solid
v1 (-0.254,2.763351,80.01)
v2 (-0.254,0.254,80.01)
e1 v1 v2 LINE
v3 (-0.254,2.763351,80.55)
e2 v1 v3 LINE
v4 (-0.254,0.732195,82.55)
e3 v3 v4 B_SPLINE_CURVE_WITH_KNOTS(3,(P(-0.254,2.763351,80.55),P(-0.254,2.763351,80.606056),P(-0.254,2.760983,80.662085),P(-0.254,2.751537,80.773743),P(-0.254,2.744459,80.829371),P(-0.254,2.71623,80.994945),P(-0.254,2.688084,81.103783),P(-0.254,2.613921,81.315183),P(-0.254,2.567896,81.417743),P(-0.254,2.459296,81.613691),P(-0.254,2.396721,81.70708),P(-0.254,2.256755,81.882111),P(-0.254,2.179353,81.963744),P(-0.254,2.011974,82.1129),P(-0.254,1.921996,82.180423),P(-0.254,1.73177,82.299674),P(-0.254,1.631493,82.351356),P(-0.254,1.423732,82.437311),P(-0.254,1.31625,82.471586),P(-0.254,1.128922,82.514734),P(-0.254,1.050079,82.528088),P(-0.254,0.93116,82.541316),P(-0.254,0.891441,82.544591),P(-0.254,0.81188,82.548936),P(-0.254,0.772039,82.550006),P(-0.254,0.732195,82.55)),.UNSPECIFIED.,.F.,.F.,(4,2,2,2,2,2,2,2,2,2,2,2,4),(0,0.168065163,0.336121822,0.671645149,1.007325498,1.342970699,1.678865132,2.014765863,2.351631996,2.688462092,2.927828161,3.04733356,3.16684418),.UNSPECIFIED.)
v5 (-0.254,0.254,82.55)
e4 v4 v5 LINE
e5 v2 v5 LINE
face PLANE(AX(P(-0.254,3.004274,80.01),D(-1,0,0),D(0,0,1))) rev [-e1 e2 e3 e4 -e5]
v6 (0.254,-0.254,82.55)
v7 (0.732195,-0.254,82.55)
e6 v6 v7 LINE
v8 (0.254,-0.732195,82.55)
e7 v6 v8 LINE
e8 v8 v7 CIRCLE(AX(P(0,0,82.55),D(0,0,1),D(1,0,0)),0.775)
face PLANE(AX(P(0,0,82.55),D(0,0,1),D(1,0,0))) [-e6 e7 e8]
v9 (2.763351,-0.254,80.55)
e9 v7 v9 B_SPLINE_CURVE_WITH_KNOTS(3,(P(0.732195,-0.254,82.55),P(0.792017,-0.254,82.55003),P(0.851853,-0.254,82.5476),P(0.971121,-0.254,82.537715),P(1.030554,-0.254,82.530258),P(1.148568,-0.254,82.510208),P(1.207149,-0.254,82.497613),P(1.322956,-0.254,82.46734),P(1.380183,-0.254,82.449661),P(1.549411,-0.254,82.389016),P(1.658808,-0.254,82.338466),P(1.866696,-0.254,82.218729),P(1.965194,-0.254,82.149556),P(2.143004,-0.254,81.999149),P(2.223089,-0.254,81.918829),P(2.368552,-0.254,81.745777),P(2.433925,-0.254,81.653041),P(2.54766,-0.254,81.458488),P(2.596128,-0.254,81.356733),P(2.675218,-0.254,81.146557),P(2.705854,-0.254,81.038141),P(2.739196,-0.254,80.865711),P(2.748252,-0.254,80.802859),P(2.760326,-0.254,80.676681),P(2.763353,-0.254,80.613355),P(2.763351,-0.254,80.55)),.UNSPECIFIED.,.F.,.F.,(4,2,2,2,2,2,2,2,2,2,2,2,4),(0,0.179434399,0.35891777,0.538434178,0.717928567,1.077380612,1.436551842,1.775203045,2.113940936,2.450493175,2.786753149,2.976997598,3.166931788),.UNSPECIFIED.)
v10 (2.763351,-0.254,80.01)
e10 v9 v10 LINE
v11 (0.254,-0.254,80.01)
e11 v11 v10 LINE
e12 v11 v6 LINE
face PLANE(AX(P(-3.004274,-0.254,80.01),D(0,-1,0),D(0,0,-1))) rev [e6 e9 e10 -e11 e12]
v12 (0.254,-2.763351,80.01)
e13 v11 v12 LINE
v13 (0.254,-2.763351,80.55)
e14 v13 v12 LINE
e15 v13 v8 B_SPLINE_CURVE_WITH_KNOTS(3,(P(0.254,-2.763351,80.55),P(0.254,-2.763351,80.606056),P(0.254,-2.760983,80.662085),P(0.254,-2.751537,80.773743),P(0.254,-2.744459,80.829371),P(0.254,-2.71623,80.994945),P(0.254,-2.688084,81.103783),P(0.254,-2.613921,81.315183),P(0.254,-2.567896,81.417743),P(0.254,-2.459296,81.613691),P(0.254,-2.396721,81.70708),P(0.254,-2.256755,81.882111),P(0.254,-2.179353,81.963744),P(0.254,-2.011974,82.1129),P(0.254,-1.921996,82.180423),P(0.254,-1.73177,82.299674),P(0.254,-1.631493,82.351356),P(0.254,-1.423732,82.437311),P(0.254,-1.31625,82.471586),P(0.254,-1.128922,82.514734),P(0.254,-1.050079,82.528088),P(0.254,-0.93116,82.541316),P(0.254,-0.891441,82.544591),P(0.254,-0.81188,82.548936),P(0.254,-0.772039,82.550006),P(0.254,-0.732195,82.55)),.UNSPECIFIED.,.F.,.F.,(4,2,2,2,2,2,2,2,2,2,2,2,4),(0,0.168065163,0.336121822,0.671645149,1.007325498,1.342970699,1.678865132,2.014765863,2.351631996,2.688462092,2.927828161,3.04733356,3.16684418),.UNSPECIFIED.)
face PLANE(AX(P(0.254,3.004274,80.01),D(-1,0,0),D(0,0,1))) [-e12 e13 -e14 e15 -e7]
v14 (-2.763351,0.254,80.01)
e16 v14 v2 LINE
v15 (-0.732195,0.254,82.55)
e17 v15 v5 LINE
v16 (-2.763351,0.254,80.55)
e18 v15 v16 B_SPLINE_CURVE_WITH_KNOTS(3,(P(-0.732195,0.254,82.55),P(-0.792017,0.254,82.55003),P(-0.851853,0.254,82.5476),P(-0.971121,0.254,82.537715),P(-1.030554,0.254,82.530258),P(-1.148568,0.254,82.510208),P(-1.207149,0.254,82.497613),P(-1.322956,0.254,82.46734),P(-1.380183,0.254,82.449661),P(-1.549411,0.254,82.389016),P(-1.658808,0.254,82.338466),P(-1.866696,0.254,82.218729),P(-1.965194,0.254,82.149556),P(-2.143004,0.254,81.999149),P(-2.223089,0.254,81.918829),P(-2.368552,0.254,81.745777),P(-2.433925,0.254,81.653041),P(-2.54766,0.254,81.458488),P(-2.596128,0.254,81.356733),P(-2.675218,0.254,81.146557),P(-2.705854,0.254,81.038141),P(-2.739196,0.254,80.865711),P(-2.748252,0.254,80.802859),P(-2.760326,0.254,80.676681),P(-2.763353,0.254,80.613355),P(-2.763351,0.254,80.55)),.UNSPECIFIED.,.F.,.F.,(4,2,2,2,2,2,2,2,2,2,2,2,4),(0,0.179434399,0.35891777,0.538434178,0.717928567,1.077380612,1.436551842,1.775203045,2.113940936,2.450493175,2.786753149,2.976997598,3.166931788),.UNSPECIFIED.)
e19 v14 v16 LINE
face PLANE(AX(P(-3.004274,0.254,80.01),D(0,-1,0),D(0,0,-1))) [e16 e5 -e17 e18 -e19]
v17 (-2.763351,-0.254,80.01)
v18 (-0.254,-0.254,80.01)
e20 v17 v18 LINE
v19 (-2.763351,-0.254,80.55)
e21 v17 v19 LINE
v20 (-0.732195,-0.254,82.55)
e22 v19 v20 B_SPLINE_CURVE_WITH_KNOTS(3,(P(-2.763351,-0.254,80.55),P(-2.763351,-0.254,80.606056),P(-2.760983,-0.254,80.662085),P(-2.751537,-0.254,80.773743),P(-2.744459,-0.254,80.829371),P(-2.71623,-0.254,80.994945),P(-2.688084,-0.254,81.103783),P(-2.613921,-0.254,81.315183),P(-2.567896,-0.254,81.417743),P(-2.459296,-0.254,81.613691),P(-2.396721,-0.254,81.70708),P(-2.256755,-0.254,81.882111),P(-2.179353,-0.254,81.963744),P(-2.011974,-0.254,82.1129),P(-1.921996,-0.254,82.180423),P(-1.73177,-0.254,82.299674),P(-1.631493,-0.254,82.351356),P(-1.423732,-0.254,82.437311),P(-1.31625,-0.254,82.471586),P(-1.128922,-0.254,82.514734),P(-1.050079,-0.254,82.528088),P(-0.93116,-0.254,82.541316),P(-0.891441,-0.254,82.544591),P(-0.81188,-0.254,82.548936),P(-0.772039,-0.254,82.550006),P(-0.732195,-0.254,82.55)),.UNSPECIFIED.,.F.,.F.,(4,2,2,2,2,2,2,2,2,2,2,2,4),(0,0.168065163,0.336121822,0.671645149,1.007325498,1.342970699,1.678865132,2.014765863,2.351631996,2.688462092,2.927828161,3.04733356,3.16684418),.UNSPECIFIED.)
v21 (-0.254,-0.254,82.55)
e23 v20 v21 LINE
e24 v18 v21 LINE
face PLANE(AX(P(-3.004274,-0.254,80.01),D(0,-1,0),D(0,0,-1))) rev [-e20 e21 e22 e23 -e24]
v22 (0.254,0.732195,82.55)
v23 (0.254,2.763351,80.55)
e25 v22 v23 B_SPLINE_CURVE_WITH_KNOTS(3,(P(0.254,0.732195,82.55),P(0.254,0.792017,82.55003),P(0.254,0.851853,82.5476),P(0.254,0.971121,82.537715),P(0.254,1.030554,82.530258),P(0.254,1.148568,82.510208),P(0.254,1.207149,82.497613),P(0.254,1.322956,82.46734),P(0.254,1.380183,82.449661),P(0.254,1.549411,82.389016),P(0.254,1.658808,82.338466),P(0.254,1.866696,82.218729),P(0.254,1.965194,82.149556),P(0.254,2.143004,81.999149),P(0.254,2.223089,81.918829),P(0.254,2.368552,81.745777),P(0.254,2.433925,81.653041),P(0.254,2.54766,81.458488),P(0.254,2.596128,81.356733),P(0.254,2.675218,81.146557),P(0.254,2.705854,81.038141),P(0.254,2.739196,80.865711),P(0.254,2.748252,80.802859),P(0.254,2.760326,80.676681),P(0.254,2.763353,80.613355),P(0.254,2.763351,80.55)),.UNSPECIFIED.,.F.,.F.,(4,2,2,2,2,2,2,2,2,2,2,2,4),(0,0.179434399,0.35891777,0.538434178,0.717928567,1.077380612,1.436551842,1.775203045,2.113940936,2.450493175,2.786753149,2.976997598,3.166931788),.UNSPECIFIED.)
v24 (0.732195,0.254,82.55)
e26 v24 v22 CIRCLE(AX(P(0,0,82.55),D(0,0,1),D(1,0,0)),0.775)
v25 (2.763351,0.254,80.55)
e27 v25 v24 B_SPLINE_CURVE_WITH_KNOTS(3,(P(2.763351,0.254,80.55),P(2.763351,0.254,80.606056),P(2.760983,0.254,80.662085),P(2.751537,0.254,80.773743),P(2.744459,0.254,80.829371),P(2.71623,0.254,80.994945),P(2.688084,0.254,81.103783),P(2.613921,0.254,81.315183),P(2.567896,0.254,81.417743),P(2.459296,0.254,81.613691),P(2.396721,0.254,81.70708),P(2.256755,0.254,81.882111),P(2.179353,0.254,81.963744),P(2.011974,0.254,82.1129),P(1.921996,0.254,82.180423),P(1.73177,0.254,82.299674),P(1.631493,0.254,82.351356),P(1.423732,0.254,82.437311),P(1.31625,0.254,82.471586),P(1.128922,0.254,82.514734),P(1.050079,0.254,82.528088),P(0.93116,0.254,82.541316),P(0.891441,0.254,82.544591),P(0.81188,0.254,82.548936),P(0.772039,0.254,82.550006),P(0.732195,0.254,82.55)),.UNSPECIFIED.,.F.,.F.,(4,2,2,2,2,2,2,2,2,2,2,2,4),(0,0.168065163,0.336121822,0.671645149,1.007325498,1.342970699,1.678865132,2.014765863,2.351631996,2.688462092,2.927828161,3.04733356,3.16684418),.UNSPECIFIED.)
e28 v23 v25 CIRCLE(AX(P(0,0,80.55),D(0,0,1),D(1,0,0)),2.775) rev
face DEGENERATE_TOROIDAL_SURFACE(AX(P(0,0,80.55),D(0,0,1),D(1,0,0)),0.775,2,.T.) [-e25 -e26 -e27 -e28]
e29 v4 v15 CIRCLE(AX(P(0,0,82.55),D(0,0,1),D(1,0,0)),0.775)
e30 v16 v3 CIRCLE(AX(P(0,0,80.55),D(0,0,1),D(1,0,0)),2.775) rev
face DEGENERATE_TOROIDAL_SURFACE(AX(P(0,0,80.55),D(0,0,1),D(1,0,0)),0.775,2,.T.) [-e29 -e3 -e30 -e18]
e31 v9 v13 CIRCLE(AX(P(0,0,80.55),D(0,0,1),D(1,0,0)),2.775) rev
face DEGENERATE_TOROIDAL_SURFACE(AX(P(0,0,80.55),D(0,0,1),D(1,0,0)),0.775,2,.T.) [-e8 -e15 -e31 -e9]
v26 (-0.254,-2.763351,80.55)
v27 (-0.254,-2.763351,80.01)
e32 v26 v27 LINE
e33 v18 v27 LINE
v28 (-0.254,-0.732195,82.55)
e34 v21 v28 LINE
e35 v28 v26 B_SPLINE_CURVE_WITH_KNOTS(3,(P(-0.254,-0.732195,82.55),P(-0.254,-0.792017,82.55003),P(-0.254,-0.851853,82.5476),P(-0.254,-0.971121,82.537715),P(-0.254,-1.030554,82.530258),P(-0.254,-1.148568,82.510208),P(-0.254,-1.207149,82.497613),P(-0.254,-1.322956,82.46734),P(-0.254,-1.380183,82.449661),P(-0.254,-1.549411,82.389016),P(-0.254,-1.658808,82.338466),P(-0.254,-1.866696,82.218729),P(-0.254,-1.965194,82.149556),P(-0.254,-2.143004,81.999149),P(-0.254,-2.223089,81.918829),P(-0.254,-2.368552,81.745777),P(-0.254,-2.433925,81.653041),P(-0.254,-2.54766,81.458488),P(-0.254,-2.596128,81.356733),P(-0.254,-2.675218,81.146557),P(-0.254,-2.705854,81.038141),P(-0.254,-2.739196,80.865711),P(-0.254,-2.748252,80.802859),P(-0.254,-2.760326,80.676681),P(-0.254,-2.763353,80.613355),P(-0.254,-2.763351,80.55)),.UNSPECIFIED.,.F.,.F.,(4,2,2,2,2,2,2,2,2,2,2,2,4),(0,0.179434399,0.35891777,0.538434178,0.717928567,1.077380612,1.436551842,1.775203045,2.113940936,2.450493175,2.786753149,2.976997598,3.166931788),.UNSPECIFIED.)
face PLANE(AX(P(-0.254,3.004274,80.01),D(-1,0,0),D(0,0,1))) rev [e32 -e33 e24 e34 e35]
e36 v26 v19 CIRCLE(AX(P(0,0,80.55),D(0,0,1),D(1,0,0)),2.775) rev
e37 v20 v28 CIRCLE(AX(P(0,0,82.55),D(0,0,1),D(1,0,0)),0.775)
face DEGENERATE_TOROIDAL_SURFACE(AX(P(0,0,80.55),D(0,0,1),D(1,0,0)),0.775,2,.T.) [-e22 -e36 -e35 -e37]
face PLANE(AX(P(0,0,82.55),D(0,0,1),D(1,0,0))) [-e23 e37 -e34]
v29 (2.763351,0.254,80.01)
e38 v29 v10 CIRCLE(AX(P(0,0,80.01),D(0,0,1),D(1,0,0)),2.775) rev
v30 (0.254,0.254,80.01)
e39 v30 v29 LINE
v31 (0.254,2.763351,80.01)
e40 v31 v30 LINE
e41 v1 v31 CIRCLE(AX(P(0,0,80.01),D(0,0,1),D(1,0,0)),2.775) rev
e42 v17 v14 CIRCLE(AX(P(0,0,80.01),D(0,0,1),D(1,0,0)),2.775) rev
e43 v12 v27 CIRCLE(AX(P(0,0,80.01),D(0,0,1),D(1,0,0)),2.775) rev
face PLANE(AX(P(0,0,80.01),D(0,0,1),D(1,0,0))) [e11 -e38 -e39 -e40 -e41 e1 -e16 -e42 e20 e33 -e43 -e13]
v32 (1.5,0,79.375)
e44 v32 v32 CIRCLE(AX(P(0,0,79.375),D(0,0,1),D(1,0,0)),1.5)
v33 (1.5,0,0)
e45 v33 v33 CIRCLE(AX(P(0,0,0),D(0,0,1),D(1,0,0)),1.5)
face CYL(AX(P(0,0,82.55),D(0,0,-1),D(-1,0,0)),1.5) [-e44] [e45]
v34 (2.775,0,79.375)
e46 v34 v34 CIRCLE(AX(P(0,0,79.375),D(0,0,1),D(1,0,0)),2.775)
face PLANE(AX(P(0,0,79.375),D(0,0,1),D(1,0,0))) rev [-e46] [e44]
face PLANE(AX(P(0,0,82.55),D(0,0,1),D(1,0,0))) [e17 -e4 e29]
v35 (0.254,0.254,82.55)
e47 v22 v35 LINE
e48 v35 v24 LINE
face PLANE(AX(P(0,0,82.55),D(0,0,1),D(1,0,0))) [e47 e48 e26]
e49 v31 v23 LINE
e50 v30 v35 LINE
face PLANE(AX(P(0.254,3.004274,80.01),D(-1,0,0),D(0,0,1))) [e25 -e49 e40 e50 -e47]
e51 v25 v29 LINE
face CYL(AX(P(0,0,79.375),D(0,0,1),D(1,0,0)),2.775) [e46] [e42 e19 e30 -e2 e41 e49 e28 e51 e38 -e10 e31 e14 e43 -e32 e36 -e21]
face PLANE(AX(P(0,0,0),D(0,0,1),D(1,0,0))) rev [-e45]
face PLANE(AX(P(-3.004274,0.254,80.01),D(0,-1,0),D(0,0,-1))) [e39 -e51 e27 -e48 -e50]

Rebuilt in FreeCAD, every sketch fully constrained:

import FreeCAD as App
import Part
import Sketcher

V = App.Vector
Q = App.Units.Quantity


def edges_at(feature, points):
    """Names of the edges that pass closest to the given points."""
    edges = feature.Shape.Edges
    near = lambda p: min(range(len(edges)), key=lambda i: edges[i].distToShape(Part.Vertex(*p))[0])
    return sorted({f"Edge{near(p) + 1}" for p in points})

doc = App.newDocument("Part")
body = doc.addObject("PartDesign::Body", "Body")

# Sketch on XY plane
sketch1 = body.newObject("Sketcher::SketchObject", "Sketch")
sketch1.AttachmentSupport = (doc.getObject("XY_Plane"), [""])
sketch1.MapMode = "FlatFace"
sketch1.addGeometry(Part.Circle(V(0, 0, 0), V(0, 0, 1), 1.5), False)
sketch1.addConstraint([
    Sketcher.Constraint("Coincident", 0, 3, -1, 1),
    Sketcher.Constraint("Diameter", 0, 3.0),
])
pad1 = body.newObject("PartDesign::Pad", "Pad")
pad1.Profile = sketch1
pad1.Length = Q("3.25 in")

# Sketch on XY plane
sketch2 = body.newObject("Sketcher::SketchObject", "Sketch001")
sketch2.AttachmentSupport = (doc.getObject("XY_Plane"), [""])
sketch2.MapMode = "FlatFace"
sketch2.AttachmentOffset = App.Placement(V(0, 0, 3.25 * 25.4), App.Rotation())
sketch2.addGeometry(Part.Circle(V(0, 0, 0), V(0, 0, 1), 2.8), False)
sketch2.addConstraint([
    Sketcher.Constraint("Coincident", 0, 3, -1, 1),
    Sketcher.Constraint("Diameter", 0, 5.55),
])
pad2 = body.newObject("PartDesign::Pad", "Pad001")
pad2.Profile = sketch2
pad2.Length = Q("0.125 in")
pad2.Reversed = True

# Sketch on XY plane
sketch3 = body.newObject("Sketcher::SketchObject", "Sketch002")
sketch3.AttachmentSupport = (doc.getObject("XY_Plane"), [""])
sketch3.MapMode = "FlatFace"
sketch3.AttachmentOffset = App.Placement(V(0, 0, 3.25 * 25.4), App.Rotation())
sketch3.addGeometry([
    Part.LineSegment(V(-0.3, -0.3, 0), V(-0.3, -3, 0)),  # 0
    Part.LineSegment(V(-0.3, -3, 0), V(0.3, -3, 0)),  # 1
    Part.LineSegment(V(0.3, -3, 0), V(0.3, -0.3, 0)),  # 2
    Part.LineSegment(V(0.3, -0.3, 0), V(3, -0.3, 0)),  # 3
    Part.LineSegment(V(3, -0.3, 0), V(3, 0.3, 0)),  # 4
    Part.LineSegment(V(3, 0.3, 0), V(0.3, 0.3, 0)),  # 5
    Part.LineSegment(V(0.3, 0.3, 0), V(0.3, 3, 0)),  # 6
    Part.LineSegment(V(0.3, 3, 0), V(-0.3, 3, 0)),  # 7
    Part.LineSegment(V(-0.3, 3, 0), V(-0.3, 0.3, 0)),  # 8
    Part.LineSegment(V(-0.3, 0.3, 0), V(-3, 0.3, 0)),  # 9
    Part.LineSegment(V(-3, 0.3, 0), V(-3, -0.3, 0)),  # 10
    Part.LineSegment(V(-3, -0.3, 0), V(-0.3, -0.3, 0)),  # 11
], False)
sketch3.addConstraint([
    Sketcher.Constraint("Coincident", 0, 2, 1, 1),
    Sketcher.Constraint("Coincident", 1, 2, 2, 1),
    Sketcher.Constraint("Coincident", 2, 2, 3, 1),
    Sketcher.Constraint("Coincident", 3, 2, 4, 1),
    Sketcher.Constraint("Coincident", 4, 2, 5, 1),
    Sketcher.Constraint("Coincident", 5, 2, 6, 1),
    Sketcher.Constraint("Coincident", 6, 2, 7, 1),
    Sketcher.Constraint("Coincident", 7, 2, 8, 1),
    Sketcher.Constraint("Coincident", 8, 2, 9, 1),
    Sketcher.Constraint("Coincident", 9, 2, 10, 1),
    Sketcher.Constraint("Coincident", 10, 2, 11, 1),
    Sketcher.Constraint("Coincident", 11, 2, 0, 1),
    Sketcher.Constraint("Vertical", 0),
    Sketcher.Constraint("Horizontal", 1),
    Sketcher.Constraint("Vertical", 2),
    Sketcher.Constraint("Horizontal", 3),
    Sketcher.Constraint("Vertical", 4),
    Sketcher.Constraint("Horizontal", 5),
    Sketcher.Constraint("Vertical", 6),
    Sketcher.Constraint("Horizontal", 7),
    Sketcher.Constraint("Vertical", 8),
    Sketcher.Constraint("Horizontal", 9),
    Sketcher.Constraint("Vertical", 10),
    Sketcher.Constraint("Horizontal", 11),
    Sketcher.Constraint("Symmetric", 0, 2, 6, 2, -1, 1),
    Sketcher.Constraint("Symmetric", 2, 2, 8, 2, -1, 1),
    Sketcher.Constraint("Symmetric", 4, 2, 10, 2, -1, 1),
    Sketcher.Constraint("Symmetric", 5, 2, 8, 2, -2),
    Sketcher.Constraint("Equal", 11, 0),
    Sketcher.Constraint("Equal", 7, 4),
    Sketcher.Constraint("DistanceX", 1, 1, 1, 2, Q("0.02 in")),
    Sketcher.Constraint("DistanceX", 3, 1, 3, 2, 2.750274),
])
pocket1 = body.newObject("PartDesign::Pocket", "Pocket")
pocket1.Profile = sketch3
pocket1.Length = Q("0.1 in")
doc.recompute()

fillet = body.newObject("PartDesign::Fillet", "Fillet")
fillet.Base = (pocket1, edges_at(pocket1, [
    (-1.962, 1.962, 82.55),
    (-1.962, -1.962, 82.55),
    (1.962, -1.962, 82.55),
    (1.962, 1.962, 82.55),
]))
fillet.Radius = 2

doc.recompute()
